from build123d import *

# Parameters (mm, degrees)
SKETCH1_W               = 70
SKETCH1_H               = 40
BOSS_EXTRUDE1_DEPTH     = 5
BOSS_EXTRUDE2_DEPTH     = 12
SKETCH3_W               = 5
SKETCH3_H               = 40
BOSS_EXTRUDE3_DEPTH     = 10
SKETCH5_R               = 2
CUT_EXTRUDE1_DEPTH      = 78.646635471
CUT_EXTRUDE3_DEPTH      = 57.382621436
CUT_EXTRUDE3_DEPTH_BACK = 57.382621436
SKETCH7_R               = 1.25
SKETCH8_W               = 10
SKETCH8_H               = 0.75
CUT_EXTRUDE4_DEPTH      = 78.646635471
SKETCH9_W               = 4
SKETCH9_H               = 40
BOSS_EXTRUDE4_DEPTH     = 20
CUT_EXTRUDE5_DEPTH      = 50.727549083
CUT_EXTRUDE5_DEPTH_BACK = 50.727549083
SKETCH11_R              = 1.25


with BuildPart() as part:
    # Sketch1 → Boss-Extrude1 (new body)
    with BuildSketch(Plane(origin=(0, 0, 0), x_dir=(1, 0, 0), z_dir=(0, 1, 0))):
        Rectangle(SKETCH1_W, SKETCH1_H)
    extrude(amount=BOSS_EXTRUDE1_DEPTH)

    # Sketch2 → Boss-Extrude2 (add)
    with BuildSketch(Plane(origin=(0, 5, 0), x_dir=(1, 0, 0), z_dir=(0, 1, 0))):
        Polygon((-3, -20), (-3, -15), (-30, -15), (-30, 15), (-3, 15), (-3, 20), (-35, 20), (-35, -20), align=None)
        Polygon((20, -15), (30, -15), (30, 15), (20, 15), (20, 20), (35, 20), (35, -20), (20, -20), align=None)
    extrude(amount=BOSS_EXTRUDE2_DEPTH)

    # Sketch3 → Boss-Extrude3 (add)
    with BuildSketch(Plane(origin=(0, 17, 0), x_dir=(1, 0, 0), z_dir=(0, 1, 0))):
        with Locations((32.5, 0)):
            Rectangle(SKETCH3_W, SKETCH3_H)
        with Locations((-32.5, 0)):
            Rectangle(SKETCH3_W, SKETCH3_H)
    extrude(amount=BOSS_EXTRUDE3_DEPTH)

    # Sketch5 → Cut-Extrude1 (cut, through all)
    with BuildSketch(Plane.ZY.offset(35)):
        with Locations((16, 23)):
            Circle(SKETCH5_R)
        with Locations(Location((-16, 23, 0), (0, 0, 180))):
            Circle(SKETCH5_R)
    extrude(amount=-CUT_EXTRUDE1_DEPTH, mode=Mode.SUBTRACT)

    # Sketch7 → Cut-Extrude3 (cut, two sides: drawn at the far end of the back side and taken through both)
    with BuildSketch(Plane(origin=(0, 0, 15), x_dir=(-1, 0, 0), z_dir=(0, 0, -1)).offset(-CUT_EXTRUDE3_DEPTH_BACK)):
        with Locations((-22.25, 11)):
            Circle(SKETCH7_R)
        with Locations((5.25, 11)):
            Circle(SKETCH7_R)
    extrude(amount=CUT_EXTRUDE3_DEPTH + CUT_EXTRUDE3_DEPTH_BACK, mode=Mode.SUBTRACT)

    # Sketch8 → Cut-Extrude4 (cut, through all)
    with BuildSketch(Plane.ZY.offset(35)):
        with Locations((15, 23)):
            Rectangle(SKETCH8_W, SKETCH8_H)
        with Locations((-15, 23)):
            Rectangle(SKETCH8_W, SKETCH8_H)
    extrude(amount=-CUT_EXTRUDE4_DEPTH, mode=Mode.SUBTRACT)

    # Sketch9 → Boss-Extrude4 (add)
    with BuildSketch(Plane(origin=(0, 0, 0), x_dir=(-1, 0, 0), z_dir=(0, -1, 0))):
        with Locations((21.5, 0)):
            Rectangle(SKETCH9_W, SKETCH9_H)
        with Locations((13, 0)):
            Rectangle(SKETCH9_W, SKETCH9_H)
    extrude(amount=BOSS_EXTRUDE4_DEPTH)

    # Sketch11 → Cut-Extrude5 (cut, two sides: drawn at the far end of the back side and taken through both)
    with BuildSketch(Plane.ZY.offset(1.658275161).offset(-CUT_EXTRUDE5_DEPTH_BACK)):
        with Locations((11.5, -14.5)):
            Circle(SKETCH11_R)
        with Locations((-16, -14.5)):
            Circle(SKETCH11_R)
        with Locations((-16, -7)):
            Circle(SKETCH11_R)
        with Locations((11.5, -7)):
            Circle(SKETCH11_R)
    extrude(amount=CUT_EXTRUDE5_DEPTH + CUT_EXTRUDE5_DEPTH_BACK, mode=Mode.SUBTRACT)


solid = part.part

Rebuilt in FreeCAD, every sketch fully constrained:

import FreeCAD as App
import Part
import Sketcher
from FreeCAD import Vector


def add_polygon(sketch, points):
    """Adds a closed chain of lines whose ends are joined by coincident constraints."""
    first, n = sketch.GeometryCount, len(points)
    for a, b in zip(points, points[1:] + points[:1]):
        sketch.addGeometry(Part.LineSegment(App.Vector(*a, 0), App.Vector(*b, 0)), False)
    for i in range(n):
        sketch.addConstraint(Sketcher.Constraint("Coincident", first + i, 2, first + (i + 1) % n, 1))

doc = App.newDocument("Part")
params = doc.addObject("Spreadsheet::Sheet", "Params")
for row, (alias, value) in enumerate([
    ("sketch1_width", "70 mm"),
    ("sketch1_height", "40 mm"),
    ("pad1_length", "5 mm"),
    ("sketch2_width", "27 mm"),
    ("sketch2_width2", "32 mm"),
    ("sketch2_width3", "10 mm"),
    ("sketch2_height", "5 mm"),
    ("sketch2_height2", "30 mm"),
    ("pad2_length", "12 mm"),
    ("sketch3_width", "5 mm"),
    ("sketch3_height", "40 mm"),
    ("pad3_length", "10 mm"),
    ("sketch4_diameter", "4 mm"),
    ("sketch5_diameter", "2.5 mm"),
    ("sketch6_height", "10 mm"),
    ("sketch6_width", "0.75 mm"),
    ("sketch7_width", "4 mm"),
    ("sketch7_height", "40 mm"),
    ("pad4_length", "20 mm"),
    ("sketch8_diameter", "2.5 mm"),
], start=1):
    params.set(f"A{row}", alias)
    params.set(f"B{row}", "=" + value)
    params.setAlias(f"B{row}", alias)

body = doc.addObject("PartDesign::Body", "Body")

# Sketch on XZ plane
sketch1 = body.newObject("Sketcher::SketchObject", "Sketch")
sketch1.AttachmentSupport = (doc.getObject("XZ_Plane"), [""])
sketch1.MapMode = "FlatFace"
add_polygon(sketch1, [(-35, -20), (-35, 20), (35, 20), (35, -20)])  # lines 0-3
sketch1.addConstraint([
    Sketcher.Constraint("Vertical", 0),
    Sketcher.Constraint("Horizontal", 1),
    Sketcher.Constraint("Vertical", 2),
    Sketcher.Constraint("Horizontal", 3),
    Sketcher.Constraint("Symmetric", 0, 2, 2, 2, -1, 1),
    Sketcher.Constraint("DistanceX", 1, 1, 1, 2, 70.0),
    Sketcher.Constraint("DistanceY", 0, 1, 0, 2, 40.0),
])
sketch1.setExpression("Constraints[9]", "Params.sketch1_width")
sketch1.setExpression("Constraints[10]", "Params.sketch1_height")
pad1 = body.newObject("PartDesign::Pad", "Pad")
pad1.Profile = sketch1
pad1.setExpression("Length", "Params.pad1_length")
pad1.Reversed = True

# Sketch on XZ plane
sketch2 = body.newObject("Sketcher::SketchObject", "Sketch001")
sketch2.AttachmentSupport = (doc.getObject("XZ_Plane"), [""])
sketch2.MapMode = "FlatFace"
sketch2.AttachmentOffset = App.Placement(Vector(0, 0, -5), App.Rotation())
add_polygon(sketch2, [(-3, 20), (-3, 15), (-30, 15), (-30, -15), (-3, -15), (-3, -20), (-35, -20), (-35, 20)])  # lines 0-7
add_polygon(sketch2, [(30, 15), (20, 15), (20, 20), (35, 20), (35, -20), (20, -20), (20, -15), (30, -15)])  # lines 8-15
sketch2.addConstraint([
    Sketcher.Constraint("Vertical", 0),
    Sketcher.Constraint("Horizontal", 1),
    Sketcher.Constraint("Vertical", 2),
    Sketcher.Constraint("Horizontal", 3),
    Sketcher.Constraint("Vertical", 4),
    Sketcher.Constraint("Horizontal", 5),
    Sketcher.Constraint("Vertical", 6),
    Sketcher.Constraint("Horizontal", 7),
    Sketcher.Constraint("Horizontal", 8),
    Sketcher.Constraint("Vertical", 9),
    Sketcher.Constraint("Horizontal", 10),
    Sketcher.Constraint("Vertical", 11),
    Sketcher.Constraint("Horizontal", 12),
    Sketcher.Constraint("Vertical", 13),
    Sketcher.Constraint("Horizontal", 14),
    Sketcher.Constraint("Vertical", 15),
    Sketcher.Constraint("Symmetric", 5, 2, 10, 2, -1, 1),
    Sketcher.Constraint("Symmetric", 1, 2, 14, 2, -1, 1),
    Sketcher.Constraint("Symmetric", 0, 2, 3, 2, -1),
    Sketcher.Constraint("Symmetric", 9, 2, 12, 2, -1),
    Sketcher.Constraint("Horizontal", 1, 2, 8, 2),
    Sketcher.Constraint("Horizontal", 7, 2, 9, 2),
    Sketcher.Constraint("DistanceX", 1, 2, 1, 1, 27.0),
    Sketcher.Constraint("DistanceX", 5, 2, 5, 1, 32.0),
    Sketcher.Constraint("DistanceX", 8, 2, 8, 1, 10.0),
    Sketcher.Constraint("DistanceY", 0, 2, 0, 1, 5.0),
    Sketcher.Constraint("DistanceY", 2, 2, 2, 1, 30.0),
    Sketcher.Constraint("DistanceX", 0, 2, -1, 1, 3.0),
])
sketch2.setExpression("Constraints[38]", "Params.sketch2_width")
sketch2.setExpression("Constraints[39]", "Params.sketch2_width2")
sketch2.setExpression("Constraints[40]", "Params.sketch2_width3")
sketch2.setExpression("Constraints[41]", "Params.sketch2_height")
sketch2.setExpression("Constraints[42]", "Params.sketch2_height2")
pad2 = body.newObject("PartDesign::Pad", "Pad001")
pad2.Profile = sketch2
pad2.setExpression("Length", "Params.pad2_length")
pad2.Reversed = True

# Sketch on XZ plane
sketch3 = body.newObject("Sketcher::SketchObject", "Sketch002")
sketch3.AttachmentSupport = (doc.getObject("XZ_Plane"), [""])
sketch3.MapMode = "FlatFace"
sketch3.AttachmentOffset = App.Placement(Vector(0, 0, -17), App.Rotation())
add_polygon(sketch3, [(30, -20), (30, 20), (35, 20), (35, -20)])  # lines 0-3
add_polygon(sketch3, [(-35, -20), (-35, 20), (-30, 20), (-30, -20)])  # lines 4-7
sketch3.addConstraint([
    Sketcher.Constraint("Vertical", 0),
    Sketcher.Constraint("Horizontal", 1),
    Sketcher.Constraint("Vertical", 2),
    Sketcher.Constraint("Horizontal", 3),
    Sketcher.Constraint("Vertical", 4),
    Sketcher.Constraint("Horizontal", 5),
    Sketcher.Constraint("Vertical", 6),
    Sketcher.Constraint("Horizontal", 7),
    Sketcher.Constraint("Symmetric", 2, 2, 4, 2, -1, 1),
    Sketcher.Constraint("Symmetric", 0, 2, 6, 2, -1, 1),
    Sketcher.Constraint("Horizontal", 1, 2, 4, 2),
    Sketcher.Constraint("DistanceX", 1, 1, 1, 2, 5.0),
    Sketcher.Constraint("DistanceY", 0, 1, 0, 2, 40.0),
    Sketcher.Constraint("DistanceX", -1, 1, 0, 2, 30.0),
])
sketch3.setExpression("Constraints[19]", "Params.sketch3_width")
sketch3.setExpression("Constraints[20]", "Params.sketch3_height")
pad3 = body.newObject("PartDesign::Pad", "Pad002")
pad3.Profile = sketch3
pad3.setExpression("Length", "Params.pad3_length")
pad3.Reversed = True

# Sketch on YZ plane
sketch4 = body.newObject("Sketcher::SketchObject", "Sketch003")
sketch4.AttachmentSupport = (doc.getObject("YZ_Plane"), [""])
sketch4.MapMode = "FlatFace"
sketch4.AttachmentOffset = App.Placement(Vector(0, 0, -35), App.Rotation())
sketch4.addGeometry([
    Part.Circle(Vector(23, 16, 0), Vector(0, 0, 1), 2),
    Part.Circle(Vector(23, -16, 0), Vector(0, 0, 1), 2),
], False)
sketch4.addConstraint([
    Sketcher.Constraint("Equal", 0, 1),
    Sketcher.Constraint("Symmetric", 0, 3, 1, 3, -1),
    Sketcher.Constraint("Diameter", 0, 4.0),
    Sketcher.Constraint("DistanceX", -1, 1, 0, 3, 23.0),
    Sketcher.Constraint("DistanceY", -1, 1, 0, 3, 16.0),
])
sketch4.setExpression("Constraints[2]", "Params.sketch4_diameter")
pocket1 = body.newObject("PartDesign::Pocket", "Pocket")
pocket1.Profile = sketch4
pocket1.Type = "ThroughAll"
pocket1.Reversed = True

# Sketch on XY plane
sketch5 = body.newObject("Sketcher::SketchObject", "Sketch004")
sketch5.AttachmentSupport = (doc.getObject("XY_Plane"), [""])
sketch5.MapMode = "FlatFace"
sketch5.AttachmentOffset = App.Placement(Vector(0, 0, 15), App.Rotation())
sketch5.addGeometry([
    Part.Circle(Vector(22.25, 11, 0), Vector(0, 0, 1), 1.25),
    Part.Circle(Vector(-5.25, 11, 0), Vector(0, 0, 1), 1.25),
], False)
sketch5.addConstraint([
    Sketcher.Constraint("Equal", 0, 1),
    Sketcher.Constraint("Horizontal", 0, 3, 1, 3),
    Sketcher.Constraint("Diameter", 0, 2.5),
    Sketcher.Constraint("DistanceY", -1, 1, 0, 3, 11.0),
    Sketcher.Constraint("DistanceX", 1, 3, 0, 3, 27.5),
    Sketcher.Constraint("DistanceX", -1, 1, 0, 3, 22.25),
])
sketch5.setExpression("Constraints[2]", "Params.sketch5_diameter")
pocket2 = body.newObject("PartDesign::Pocket", "Pocket001")
pocket2.Profile = sketch5
pocket2.Type = "ThroughAll"
pocket2.Midplane = True

# Sketch on YZ plane
sketch6 = body.newObject("Sketcher::SketchObject", "Sketch005")
sketch6.AttachmentSupport = (doc.getObject("YZ_Plane"), [""])
sketch6.MapMode = "FlatFace"
sketch6.AttachmentOffset = App.Placement(Vector(0, 0, -35), App.Rotation())
add_polygon(sketch6, [(23.375, 10), (22.625, 10), (22.625, 20), (23.375, 20)])  # lines 0-3
add_polygon(sketch6, [(23.375, -20), (22.625, -20), (22.625, -10), (23.375, -10)])  # lines 4-7
sketch6.addConstraint([
    Sketcher.Constraint("Horizontal", 0),
    Sketcher.Constraint("Vertical", 1),
    Sketcher.Constraint("Horizontal", 2),
    Sketcher.Constraint("Vertical", 3),
    Sketcher.Constraint("Horizontal", 4),
    Sketcher.Constraint("Vertical", 5),
    Sketcher.Constraint("Horizontal", 6),
    Sketcher.Constraint("Vertical", 7),
    Sketcher.Constraint("Symmetric", 1, 2, 4, 2, -1),
    Sketcher.Constraint("Symmetric", 3, 2, 6, 2, -1),
    Sketcher.Constraint("DistanceY", 1, 1, 1, 2, 10.0),
    Sketcher.Constraint("DistanceY", -1, 1, 0, 2, 10.0),
    Sketcher.Constraint("DistanceX", 0, 2, 0, 1, 0.75),
    Sketcher.Constraint("DistanceX", -1, 1, 0, 2, 22.625),
])
sketch6.setExpression("Constraints[18]", "Params.sketch6_height")
sketch6.setExpression("Constraints[20]", "Params.sketch6_width")
pocket3 = body.newObject("PartDesign::Pocket", "Pocket002")
pocket3.Profile = sketch6
pocket3.Type = "ThroughAll"
pocket3.Reversed = True

# Sketch on XZ plane
sketch7 = body.newObject("Sketcher::SketchObject", "Sketch006")
sketch7.AttachmentSupport = (doc.getObject("XZ_Plane"), [""])
sketch7.MapMode = "FlatFace"
add_polygon(sketch7, [(-19.5, -20), (-19.5, 20), (-23.5, 20), (-23.5, -20)])  # lines 0-3
add_polygon(sketch7, [(-11, -20), (-11, 20), (-15, 20), (-15, -20)])  # lines 4-7
sketch7.addConstraint([
    Sketcher.Constraint("Vertical", 0),
    Sketcher.Constraint("Horizontal", 1),
    Sketcher.Constraint("Vertical", 2),
    Sketcher.Constraint("Horizontal", 3),
    Sketcher.Constraint("Vertical", 4),
    Sketcher.Constraint("Horizontal", 5),
    Sketcher.Constraint("Vertical", 6),
    Sketcher.Constraint("Horizontal", 7),
    Sketcher.Constraint("Horizontal", 1, 2, 4, 2),
    Sketcher.Constraint("Horizontal", 3, 2, 6, 2),
    Sketcher.Constraint("Equal", 3, 5),
    Sketcher.Constraint("DistanceX", 1, 2, 1, 1, 4.0),
    Sketcher.Constraint("DistanceY", 0, 1, 0, 2, 40.0),
    Sketcher.Constraint("DistanceY", -1, 1, 0, 2, 20.0),
    Sketcher.Constraint("DistanceX", 4, 2, -1, 1, 11.0),
    Sketcher.Constraint("DistanceX", 0, 2, -1, 1, 19.5),
])
sketch7.setExpression("Constraints[19]", "Params.sketch7_width")
sketch7.setExpression("Constraints[20]", "Params.sketch7_height")
pad4 = body.newObject("PartDesign::Pad", "Pad003")
pad4.Profile = sketch7
pad4.setExpression("Length", "Params.pad4_length")

# Sketch on YZ plane
sketch8 = body.newObject("Sketcher::SketchObject", "Sketch007")
sketch8.AttachmentSupport = (doc.getObject("YZ_Plane"), [""])
sketch8.MapMode = "FlatFace"
sketch8.AttachmentOffset = App.Placement(Vector(0, 0, -1.658275), App.Rotation())
sketch8.addGeometry([
    Part.Circle(Vector(-14.5, 11.5, 0), Vector(0, 0, 1), 1.25),
    Part.Circle(Vector(-14.5, -16, 0), Vector(0, 0, 1), 1.25),
    Part.Circle(Vector(-7, -16, 0), Vector(0, 0, 1), 1.25),
    Part.Circle(Vector(-7, 11.5, 0), Vector(0, 0, 1), 1.25),
], False)
sketch8.addConstraint([
    Sketcher.Constraint("Equal", 0, 1),
    Sketcher.Constraint("Equal", 1, 2),
    Sketcher.Constraint("Equal", 2, 3),
    Sketcher.Constraint("Horizontal", 1, 3, 2, 3),
    Sketcher.Constraint("Horizontal", 0, 3, 3, 3),
    Sketcher.Constraint("Vertical", 0, 3, 1, 3),
    Sketcher.Constraint("Vertical", 2, 3, 3, 3),
    Sketcher.Constraint("Diameter", 0, 2.5),
    Sketcher.Constraint("DistanceY", 1, 3, -1, 1, 16.0),
    Sketcher.Constraint("DistanceX", 2, 3, -1, 1, 7.0),
    Sketcher.Constraint("DistanceX", 0, 3, -1, 1, 14.5),
    Sketcher.Constraint("DistanceY", -1, 1, 0, 3, 11.5),
])
sketch8.setExpression("Constraints[7]", "Params.sketch8_diameter")
pocket4 = body.newObject("PartDesign::Pocket", "Pocket003")
pocket4.Profile = sketch8
pocket4.Type = "ThroughAll"
pocket4.Midplane = True

doc.recompute()
